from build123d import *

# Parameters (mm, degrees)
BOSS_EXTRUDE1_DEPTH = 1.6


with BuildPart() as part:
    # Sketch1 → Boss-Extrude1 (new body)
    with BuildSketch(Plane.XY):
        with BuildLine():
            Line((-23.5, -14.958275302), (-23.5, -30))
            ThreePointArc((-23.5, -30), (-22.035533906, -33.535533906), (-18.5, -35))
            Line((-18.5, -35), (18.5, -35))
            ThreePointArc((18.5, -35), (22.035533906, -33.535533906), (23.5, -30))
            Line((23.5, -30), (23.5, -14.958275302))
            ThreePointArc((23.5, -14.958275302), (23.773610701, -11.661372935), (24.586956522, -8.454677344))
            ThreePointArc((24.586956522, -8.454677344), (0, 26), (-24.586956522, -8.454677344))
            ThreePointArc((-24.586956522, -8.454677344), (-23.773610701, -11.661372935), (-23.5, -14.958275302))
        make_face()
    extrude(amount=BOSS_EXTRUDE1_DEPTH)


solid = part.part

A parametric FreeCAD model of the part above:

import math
import FreeCAD as App
import Part
import Sketcher
from FreeCAD import Vector

doc = App.newDocument("Part")
params = doc.addObject("Spreadsheet::Sheet", "Params")
for row, (alias, value) in enumerate([
    ("sketch1_radius", "5 mm"),
    ("sketch1_radius2", "20 mm"),
    ("sketch1_radius3", "26 mm"),
    ("sketch1_width", "37 mm"),
    ("pad1_length", "1.6 mm"),
], start=1):
    params.set(f"A{row}", alias)
    params.set(f"B{row}", "=" + value)
    params.setAlias(f"B{row}", alias)

body = doc.addObject("PartDesign::Body", "Body")

sketch1 = body.newObject("Sketcher::SketchObject", "Sketch")
sketch1.AttachmentSupport = (doc.getObject("XY_Plane"), [""])
sketch1.MapMode = "FlatFace"
sketch1.addGeometry([
    Part.LineSegment(Vector(-24, -15, 0), Vector(-24, -30, 0)),
    Part.ArcOfCircle(Part.Circle(Vector(-18, -30, 0), Vector(0, 0, 1), 5), math.radians(180), math.radians(270)),
    Part.LineSegment(Vector(-18, -35, 0), Vector(18, -35, 0)),
    Part.ArcOfCircle(Part.Circle(Vector(18, -30, 0), Vector(0, 0, 1), 5), math.radians(-90), math.radians(0)),
    Part.LineSegment(Vector(24, -30, 0), Vector(24, -15, 0)),
    Part.ArcOfCircle(Part.Circle(Vector(44, -15, 0), Vector(0, 0, 1), 20), math.radians(161.02), math.radians(180)),
    Part.ArcOfCircle(Part.Circle(Vector(0, 0, 0), Vector(0, 0, 1), 26), math.radians(-19), math.radians(199)),
    Part.ArcOfCircle(Part.Circle(Vector(-44, -15, 0), Vector(0, 0, 1), 20), math.radians(0), math.radians(18.98)),
], False)
sketch1.addConstraint([
    Sketcher.Constraint("Tangent", 0, 2, 1, 1),
    Sketcher.Constraint("Tangent", 1, 2, 2, 1),
    Sketcher.Constraint("Tangent", 2, 2, 3, 1),
    Sketcher.Constraint("Tangent", 3, 2, 4, 1),
    Sketcher.Constraint("Tangent", 4, 2, 5, 2),
    Sketcher.Constraint("Tangent", 5, 1, 6, 1),
    Sketcher.Constraint("Tangent", 6, 2, 7, 2),
    Sketcher.Constraint("Tangent", 7, 1, 0, 1),
    Sketcher.Constraint("Vertical", 0),
    Sketcher.Constraint("Horizontal", 2),
    Sketcher.Constraint("Vertical", 4),
    Sketcher.Constraint("Coincident", 6, 3, -1, 1),
    Sketcher.Constraint("Equal", 1, 3),
    Sketcher.Constraint("Equal", 5, 7),
    Sketcher.Constraint("Horizontal", 5, 3, 7, 3),
    Sketcher.Constraint("Radius", 1, 5.0),
    Sketcher.Constraint("Radius", 5, 20.0),
    Sketcher.Constraint("Radius", 6, 26.0),
    Sketcher.Constraint("DistanceX", 2, 1, 2, 2, 37.0),
    Sketcher.Constraint("DistanceY", 1, 3, -1, 1, 30.0),
])
sketch1.setExpression("Constraints[15]", "Params.sketch1_radius")
sketch1.setExpression("Constraints[16]", "Params.sketch1_radius2")
sketch1.setExpression("Constraints[17]", "Params.sketch1_radius3")
sketch1.setExpression("Constraints[18]", "Params.sketch1_width")
pad1 = body.newObject("PartDesign::Pad", "Pad")
pad1.Profile = sketch1
pad1.setExpression("Length", "Params.pad1_length")

doc.recompute()
